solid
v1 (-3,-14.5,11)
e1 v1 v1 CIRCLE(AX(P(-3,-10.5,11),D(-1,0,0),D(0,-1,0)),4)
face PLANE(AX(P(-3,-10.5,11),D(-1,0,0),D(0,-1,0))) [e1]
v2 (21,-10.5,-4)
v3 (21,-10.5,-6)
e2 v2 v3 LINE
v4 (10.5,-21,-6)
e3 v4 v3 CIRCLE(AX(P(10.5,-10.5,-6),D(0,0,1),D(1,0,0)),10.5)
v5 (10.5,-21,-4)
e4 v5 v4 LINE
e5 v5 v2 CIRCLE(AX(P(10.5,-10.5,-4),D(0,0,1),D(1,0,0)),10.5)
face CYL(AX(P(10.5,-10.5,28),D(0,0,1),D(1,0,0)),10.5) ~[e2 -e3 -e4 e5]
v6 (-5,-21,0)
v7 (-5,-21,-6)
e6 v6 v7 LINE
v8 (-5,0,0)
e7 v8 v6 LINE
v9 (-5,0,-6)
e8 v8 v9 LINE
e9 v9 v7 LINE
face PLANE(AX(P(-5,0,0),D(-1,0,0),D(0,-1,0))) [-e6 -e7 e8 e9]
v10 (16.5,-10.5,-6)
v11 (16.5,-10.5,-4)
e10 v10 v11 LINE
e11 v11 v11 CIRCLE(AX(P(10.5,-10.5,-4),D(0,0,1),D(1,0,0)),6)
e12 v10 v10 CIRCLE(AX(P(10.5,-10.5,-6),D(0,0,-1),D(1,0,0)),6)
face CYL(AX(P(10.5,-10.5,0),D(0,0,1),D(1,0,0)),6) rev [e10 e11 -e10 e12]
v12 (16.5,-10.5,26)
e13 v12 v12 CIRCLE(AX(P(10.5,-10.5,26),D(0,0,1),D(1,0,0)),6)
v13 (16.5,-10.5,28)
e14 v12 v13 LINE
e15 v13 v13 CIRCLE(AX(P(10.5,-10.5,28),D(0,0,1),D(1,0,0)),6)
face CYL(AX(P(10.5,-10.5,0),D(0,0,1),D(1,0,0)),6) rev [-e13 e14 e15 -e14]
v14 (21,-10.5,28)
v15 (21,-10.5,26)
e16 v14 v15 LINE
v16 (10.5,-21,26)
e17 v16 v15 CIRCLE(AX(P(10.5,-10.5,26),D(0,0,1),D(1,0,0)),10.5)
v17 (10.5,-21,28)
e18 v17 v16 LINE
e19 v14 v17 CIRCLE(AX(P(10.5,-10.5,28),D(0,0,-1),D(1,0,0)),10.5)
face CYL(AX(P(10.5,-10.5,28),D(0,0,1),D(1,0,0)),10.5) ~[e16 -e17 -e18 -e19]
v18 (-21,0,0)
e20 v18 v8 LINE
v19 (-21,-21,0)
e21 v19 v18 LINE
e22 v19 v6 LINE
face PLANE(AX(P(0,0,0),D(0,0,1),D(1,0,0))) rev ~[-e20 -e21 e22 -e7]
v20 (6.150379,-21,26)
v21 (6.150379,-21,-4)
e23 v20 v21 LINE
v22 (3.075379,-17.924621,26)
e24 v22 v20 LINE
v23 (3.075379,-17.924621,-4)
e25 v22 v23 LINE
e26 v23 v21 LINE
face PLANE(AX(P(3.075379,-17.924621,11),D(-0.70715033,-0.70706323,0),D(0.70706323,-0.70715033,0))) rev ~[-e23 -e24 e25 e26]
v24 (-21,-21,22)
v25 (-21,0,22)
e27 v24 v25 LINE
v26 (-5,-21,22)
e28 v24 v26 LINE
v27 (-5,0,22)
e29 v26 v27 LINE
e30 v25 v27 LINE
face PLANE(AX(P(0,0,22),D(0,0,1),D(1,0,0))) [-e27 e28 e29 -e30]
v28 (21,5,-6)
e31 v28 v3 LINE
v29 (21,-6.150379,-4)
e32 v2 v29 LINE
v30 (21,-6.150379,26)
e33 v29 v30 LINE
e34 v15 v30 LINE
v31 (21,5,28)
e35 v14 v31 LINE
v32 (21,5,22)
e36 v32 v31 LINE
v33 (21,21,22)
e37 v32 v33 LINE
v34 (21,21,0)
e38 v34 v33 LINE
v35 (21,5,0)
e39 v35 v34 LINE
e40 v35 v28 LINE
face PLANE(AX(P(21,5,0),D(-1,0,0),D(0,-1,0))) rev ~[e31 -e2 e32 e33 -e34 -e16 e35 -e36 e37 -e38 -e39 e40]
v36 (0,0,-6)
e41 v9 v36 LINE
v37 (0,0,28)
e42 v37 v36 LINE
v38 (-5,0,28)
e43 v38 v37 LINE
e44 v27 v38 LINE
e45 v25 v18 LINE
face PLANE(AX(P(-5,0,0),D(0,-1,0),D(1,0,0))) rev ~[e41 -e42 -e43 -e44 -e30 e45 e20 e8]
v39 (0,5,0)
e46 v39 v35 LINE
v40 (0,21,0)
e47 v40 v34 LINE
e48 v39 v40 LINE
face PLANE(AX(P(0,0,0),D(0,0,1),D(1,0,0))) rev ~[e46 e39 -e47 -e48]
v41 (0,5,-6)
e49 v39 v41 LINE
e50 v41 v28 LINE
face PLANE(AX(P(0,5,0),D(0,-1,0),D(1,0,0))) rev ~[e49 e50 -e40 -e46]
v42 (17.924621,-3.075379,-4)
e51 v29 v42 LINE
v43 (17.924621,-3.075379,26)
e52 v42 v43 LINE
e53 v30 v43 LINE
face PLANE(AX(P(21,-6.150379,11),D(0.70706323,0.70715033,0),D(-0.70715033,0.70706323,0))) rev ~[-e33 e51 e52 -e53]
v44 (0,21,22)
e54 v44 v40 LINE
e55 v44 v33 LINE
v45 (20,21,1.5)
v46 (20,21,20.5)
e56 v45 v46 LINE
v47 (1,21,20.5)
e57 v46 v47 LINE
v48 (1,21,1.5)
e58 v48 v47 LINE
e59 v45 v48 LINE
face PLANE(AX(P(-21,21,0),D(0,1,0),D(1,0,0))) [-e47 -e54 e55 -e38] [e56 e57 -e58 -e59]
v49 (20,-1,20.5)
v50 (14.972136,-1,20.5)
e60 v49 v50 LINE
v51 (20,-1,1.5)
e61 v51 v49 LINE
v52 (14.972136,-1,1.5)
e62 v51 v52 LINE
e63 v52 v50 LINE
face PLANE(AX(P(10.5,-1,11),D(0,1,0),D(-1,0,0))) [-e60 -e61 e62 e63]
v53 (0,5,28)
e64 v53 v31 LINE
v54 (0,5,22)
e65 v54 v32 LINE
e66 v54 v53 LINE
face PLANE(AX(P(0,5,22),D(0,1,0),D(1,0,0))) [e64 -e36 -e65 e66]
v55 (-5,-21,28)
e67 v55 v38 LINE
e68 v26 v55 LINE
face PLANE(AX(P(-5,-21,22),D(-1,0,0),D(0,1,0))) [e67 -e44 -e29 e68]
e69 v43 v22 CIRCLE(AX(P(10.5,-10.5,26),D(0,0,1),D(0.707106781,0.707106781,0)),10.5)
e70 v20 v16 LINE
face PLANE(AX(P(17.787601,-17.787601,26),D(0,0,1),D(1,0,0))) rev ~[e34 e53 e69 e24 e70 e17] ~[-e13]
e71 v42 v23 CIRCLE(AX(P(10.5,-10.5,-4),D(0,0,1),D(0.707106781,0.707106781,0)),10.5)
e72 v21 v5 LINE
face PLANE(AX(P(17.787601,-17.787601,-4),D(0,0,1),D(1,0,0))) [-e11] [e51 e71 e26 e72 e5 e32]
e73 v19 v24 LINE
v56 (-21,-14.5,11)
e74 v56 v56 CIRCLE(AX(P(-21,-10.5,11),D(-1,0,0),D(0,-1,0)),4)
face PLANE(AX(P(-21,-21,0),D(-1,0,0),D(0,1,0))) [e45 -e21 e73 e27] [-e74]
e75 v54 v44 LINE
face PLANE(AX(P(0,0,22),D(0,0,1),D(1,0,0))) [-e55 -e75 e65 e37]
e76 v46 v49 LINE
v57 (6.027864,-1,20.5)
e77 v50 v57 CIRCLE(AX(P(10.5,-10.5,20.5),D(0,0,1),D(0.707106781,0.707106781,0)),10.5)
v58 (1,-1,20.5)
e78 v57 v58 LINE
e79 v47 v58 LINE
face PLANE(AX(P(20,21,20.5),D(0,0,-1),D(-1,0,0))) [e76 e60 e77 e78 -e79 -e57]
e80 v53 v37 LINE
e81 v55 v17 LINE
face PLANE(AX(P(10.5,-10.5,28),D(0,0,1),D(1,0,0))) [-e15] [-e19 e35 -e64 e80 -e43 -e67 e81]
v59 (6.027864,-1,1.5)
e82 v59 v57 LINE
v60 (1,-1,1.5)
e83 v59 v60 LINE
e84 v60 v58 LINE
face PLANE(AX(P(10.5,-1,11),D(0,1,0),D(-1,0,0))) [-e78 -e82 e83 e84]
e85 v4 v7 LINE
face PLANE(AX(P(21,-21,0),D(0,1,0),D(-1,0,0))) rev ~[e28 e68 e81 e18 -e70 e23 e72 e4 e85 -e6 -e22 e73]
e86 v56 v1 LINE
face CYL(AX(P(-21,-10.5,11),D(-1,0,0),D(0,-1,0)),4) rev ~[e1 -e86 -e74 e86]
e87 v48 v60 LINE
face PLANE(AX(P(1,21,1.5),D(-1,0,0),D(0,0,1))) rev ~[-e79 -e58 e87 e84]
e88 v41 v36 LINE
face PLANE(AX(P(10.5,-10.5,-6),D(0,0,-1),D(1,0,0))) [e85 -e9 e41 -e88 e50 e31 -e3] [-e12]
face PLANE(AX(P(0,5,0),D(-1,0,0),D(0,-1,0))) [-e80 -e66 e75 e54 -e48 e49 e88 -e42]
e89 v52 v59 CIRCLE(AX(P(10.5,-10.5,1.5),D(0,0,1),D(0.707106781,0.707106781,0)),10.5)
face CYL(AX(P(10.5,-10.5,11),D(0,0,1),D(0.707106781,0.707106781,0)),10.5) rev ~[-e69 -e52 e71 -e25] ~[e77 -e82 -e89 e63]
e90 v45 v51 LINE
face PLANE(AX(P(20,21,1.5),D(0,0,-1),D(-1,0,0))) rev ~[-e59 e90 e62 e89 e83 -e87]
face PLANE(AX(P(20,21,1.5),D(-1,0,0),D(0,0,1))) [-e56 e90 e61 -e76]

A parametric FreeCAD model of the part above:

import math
import FreeCAD as App
import Part
import Sketcher
from FreeCAD import Vector


def add_polygon(sketch, points):
    """Adds a closed chain of lines whose ends are joined by coincident constraints."""
    first, n = sketch.GeometryCount, len(points)
    for a, b in zip(points, points[1:] + points[:1]):
        sketch.addGeometry(Part.LineSegment(App.Vector(*a, 0), App.Vector(*b, 0)), False)
    for i in range(n):
        sketch.addConstraint(Sketcher.Constraint("Coincident", first + i, 2, first + (i + 1) % n, 1))

doc = App.newDocument("Part")
body = doc.addObject("PartDesign::Body", "Body")

sketch1 = doc.addObject("Sketcher::SketchObject", "Sketch")
body.addObject(sketch1)
sketch1.AttachmentSupport = (doc.XY_Plane, [""])
sketch1.MapMode = "FlatFace"
add_polygon(sketch1, [(-21, 21), (-21, -21), (21, -21), (21, 21)])
sketch1.addConstraint([
    Sketcher.Constraint("Vertical", 0),
    Sketcher.Constraint("Horizontal", 1),
    Sketcher.Constraint("Vertical", 2),
    Sketcher.Constraint("Horizontal", 3),
    Sketcher.Constraint("Symmetric", 0, 2, 2, 2, -1, 1),
    Sketcher.Constraint("Equal", 3, 0),
    Sketcher.Constraint("DistanceX", 1, 1, 1, 2, 42.0),
])
pad1 = doc.addObject("PartDesign::Pad", "Pad")
body.addObject(pad1)
pad1.Profile = sketch1
pad1.Length = 22

sketch2 = doc.addObject("Sketcher::SketchObject", "Sketch001")
body.addObject(sketch2)
sketch2.AttachmentSupport = (doc.XY_Plane, [""])
sketch2.MapMode = "FlatFace"
sketch2.AttachmentOffset = App.Placement(Vector(0, 0, 22), App.Rotation())
add_polygon(sketch2, [(-21, 21), (-21, 0), (0, 0), (0, 21)])
sketch2.addConstraint([
    Sketcher.Constraint("Vertical", 0),
    Sketcher.Constraint("Horizontal", 1),
    Sketcher.Constraint("Vertical", 2),
    Sketcher.Constraint("Horizontal", 3),
    Sketcher.Constraint("Coincident", 1, 2, -1, 1),
    Sketcher.Constraint("Equal", 3, 0),
    Sketcher.Constraint("DistanceX", 1, 1, 1, 2, 21.0),
])
pocket1 = doc.addObject("PartDesign::Pocket", "Pocket")
body.addObject(pocket1)
pocket1.Profile = sketch2
pocket1.Type = "ThroughAll"

sketch3 = doc.addObject("Sketcher::SketchObject", "Sketch002")
body.addObject(sketch3)
sketch3.AttachmentSupport = (doc.XY_Plane, [""])
sketch3.MapMode = "FlatFace"
sketch3.AttachmentOffset = App.Placement(Vector(0, 0, 22), App.Rotation())
sketch3.addGeometry(Part.Circle(Vector(10, -10, 0), Vector(0, 0, 1), 6), False)
sketch3.addConstraint([
    Sketcher.Constraint("Diameter", 0, 12.0),
    Sketcher.Constraint("DistanceX", -1, 1, 0, 3, 10.5),
    Sketcher.Constraint("DistanceY", 0, 3, -1, 1, 10.5),
])
pocket2 = doc.addObject("PartDesign::Pocket", "Pocket001")
body.addObject(pocket2)
pocket2.Profile = sketch3
pocket2.Type = "ThroughAll"

sketch4 = doc.addObject("Sketcher::SketchObject", "Sketch003")
body.addObject(sketch4)
sketch4.AttachmentSupport = (doc.YZ_Plane, [""])
sketch4.MapMode = "FlatFace"
sketch4.AttachmentOffset = App.Placement(Vector(0, 0, -21), App.Rotation())
sketch4.addGeometry(Part.Circle(Vector(-10.5, 11, 0), Vector(0, 0, 1), 4), False)
sketch4.addConstraint([
    Sketcher.Constraint("Diameter", 0, 8.0),
    Sketcher.Constraint("DistanceY", -1, 1, 0, 3, 11.0),
    Sketcher.Constraint("DistanceX", 0, 3, -1, 1, 10.5),
])
pocket3 = doc.addObject("PartDesign::Pocket", "Pocket002")
body.addObject(pocket3)
pocket3.Profile = sketch4
pocket3.Length = 18
pocket3.Reversed = True

sketch5 = doc.addObject("Sketcher::SketchObject", "Sketch004")
body.addObject(sketch5)
sketch5.AttachmentSupport = (doc.XZ_Plane, [""])
sketch5.MapMode = "FlatFace"
sketch5.AttachmentOffset = App.Placement(Vector(0, 0, -21), App.Rotation())
add_polygon(sketch5, [(20, 20), (20, 2), (1, 2), (1, 20)])
sketch5.addConstraint([
    Sketcher.Constraint("Vertical", 0),
    Sketcher.Constraint("Horizontal", 1),
    Sketcher.Constraint("Vertical", 2),
    Sketcher.Constraint("Horizontal", 3),
    Sketcher.Constraint("Equal", 3, 0),
    Sketcher.Constraint("DistanceX", 1, 2, 1, 1, 19.0),
    Sketcher.Constraint("DistanceX", -1, 1, 0, 2, 20.0),
    Sketcher.Constraint("DistanceY", -1, 1, 0, 2, 1.5),
])
pocket4 = doc.addObject("PartDesign::Pocket", "Pocket003")
body.addObject(pocket4)
pocket4.Profile = sketch5
pocket4.Length = 22
pocket4.Reversed = True

sketch6 = doc.addObject("Sketcher::SketchObject", "Sketch005")
body.addObject(sketch6)
sketch6.AttachmentSupport = (doc.XY_Plane, [""])
sketch6.MapMode = "FlatFace"
sketch6.AttachmentOffset = App.Placement(Vector(0, 0, 22), App.Rotation())
add_polygon(sketch6, [(21, -21), (21, 5), (0, 5), (0, 0), (-5, 0), (-5, -21)])
sketch6.addGeometry(Part.Circle(Vector(10, -10, 0), Vector(0, 0, 1), 6), False)
sketch6.addConstraint([
    Sketcher.Constraint("Vertical", 0),
    Sketcher.Constraint("Horizontal", 1),
    Sketcher.Constraint("Vertical", 2),
    Sketcher.Constraint("Horizontal", 3),
    Sketcher.Constraint("Vertical", 4),
    Sketcher.Constraint("Horizontal", 5),
    Sketcher.Constraint("Coincident", 2, 2, -1, 1),
    Sketcher.Constraint("Equal", 5, 0),
    Sketcher.Constraint("Equal", 3, 2),
    Sketcher.Constraint("Diameter", 6, 12.0),
    Sketcher.Constraint("DistanceX", 1, 2, 1, 1, 21.0),
    Sketcher.Constraint("DistanceX", 3, 2, 3, 1, 5.0),
    Sketcher.Constraint("DistanceX", -1, 1, 6, 3, 10.5),
    Sketcher.Constraint("DistanceY", 6, 3, -1, 1, 10.5),
])
pad2 = doc.addObject("PartDesign::Pad", "Pad001")
body.addObject(pad2)
pad2.Profile = sketch6
pad2.Length = 6

sketch7 = doc.addObject("Sketcher::SketchObject", "Sketch006")
body.addObject(sketch7)
sketch7.AttachmentSupport = (doc.XY_Plane, [""])
sketch7.MapMode = "FlatFace"
add_polygon(sketch7, [(21, -21), (-5, -21), (-5, 0), (0, 0), (0, 5), (21, 5)])
sketch7.addGeometry(Part.Circle(Vector(10, -10, 0), Vector(0, 0, 1), 6), False)
sketch7.addConstraint([
    Sketcher.Constraint("Horizontal", 0),
    Sketcher.Constraint("Vertical", 1),
    Sketcher.Constraint("Horizontal", 2),
    Sketcher.Constraint("Vertical", 3),
    Sketcher.Constraint("Horizontal", 4),
    Sketcher.Constraint("Vertical", 5),
    Sketcher.Constraint("Coincident", 2, 2, -1, 1),
    Sketcher.Constraint("Equal", 4, 1),
    Sketcher.Constraint("Equal", 2, 3),
    Sketcher.Constraint("Diameter", 6, 12.0),
    Sketcher.Constraint("DistanceX", 0, 2, 0, 1, 26.0),
    Sketcher.Constraint("DistanceX", 2, 1, 2, 2, 5.0),
    Sketcher.Constraint("DistanceX", -1, 1, 6, 3, 10.5),
    Sketcher.Constraint("DistanceY", 6, 3, -1, 1, 10.5),
])
pad3 = doc.addObject("PartDesign::Pad", "Pad002")
body.addObject(pad3)
pad3.Profile = sketch7
pad3.Length = 6
pad3.Reversed = True

sketch8 = doc.addObject("Sketcher::SketchObject", "Sketch007")
body.addObject(sketch8)
sketch8.AttachmentSupport = (doc.XY_Plane, [""])
sketch8.MapMode = "FlatFace"
sketch8.AttachmentOffset = App.Placement(Vector(0, 0, 11), App.Rotation())
sketch8.addGeometry([
    Part.LineSegment(Vector(21, -21, 0), Vector(21, -6.2, 0)),
    Part.LineSegment(Vector(21, -6.2, 0), Vector(17.9, -3.1, 0)),
    Part.ArcOfCircle(Part.Circle(Vector(10.5, -10.5, 0), Vector(0, 0, 1), 10.5), math.radians(45), math.radians(225)),
    Part.LineSegment(Vector(3.1, -17.9, 0), Vector(6.2, -21, 0)),
    Part.LineSegment(Vector(6.2, -21, 0), Vector(21, -21, 0)),
    Part.Circle(Vector(10.5, -10.5, 0), Vector(0, 0, 1), 6),
], False)
sketch8.addConstraint([
    Sketcher.Constraint("Coincident", 0, 2, 1, 1),
    Sketcher.Constraint("Coincident", 1, 2, 2, 1),
    Sketcher.Constraint("Coincident", 2, 2, 3, 1),
    Sketcher.Constraint("Coincident", 3, 2, 4, 1),
    Sketcher.Constraint("Coincident", 4, 2, 0, 1),
    Sketcher.Constraint("Vertical", 0),
    Sketcher.Constraint("Horizontal", 4),
    Sketcher.Constraint("Coincident", 5, 3, 2, 3),
    Sketcher.Constraint("Equal", 4, 0),
    Sketcher.Constraint("Equal", 1, 3),
    Sketcher.Constraint("Diameter", 5, 12.0),
    Sketcher.Constraint("Radius", 2, 10.5),
    Sketcher.Constraint("DistanceX", -1, 1, 0, 2, 21.0),
    Sketcher.Constraint("DistanceY", 3, 2, -1, 1, 21.0),
    Sketcher.Constraint("DistanceX", -1, 1, 2, 3, 10.5),
    Sketcher.Constraint("DistanceY", 2, 3, -1, 1, 10.5),
    Sketcher.Constraint("DistanceY", 0, 2, 1, 2, 3.075),
    Sketcher.Constraint("DistanceX", 4, 1, 4, 2, 14.849621),
])
pocket5 = doc.addObject("PartDesign::Pocket", "Pocket004")
body.addObject(pocket5)
pocket5.Profile = sketch8
pocket5.Length = 30
pocket5.Midplane = True

sketch9 = doc.addObject("Sketcher::SketchObject", "Sketch008")
body.addObject(sketch9)
sketch9.AttachmentSupport = (doc.XY_Plane, [""])
sketch9.MapMode = "FlatFace"
sketch9.AttachmentOffset = App.Placement(Vector(0, 0, 28), App.Rotation())
sketch9.addGeometry([
    Part.LineSegment(Vector(21, -21, 0), Vector(21, -10, 0)),
    Part.ArcOfCircle(Part.Circle(Vector(10, -10, 0), Vector(0, 0, 1), 10), math.radians(-90), math.radians(0)),
    Part.LineSegment(Vector(10, -21, 0), Vector(21, -21, 0)),
], False)
sketch9.addConstraint([
    Sketcher.Constraint("Tangent", 0, 2, 1, 2),
    Sketcher.Constraint("Tangent", 1, 1, 2, 1),
    Sketcher.Constraint("Coincident", 2, 2, 0, 1),
    Sketcher.Constraint("Vertical", 0),
    Sketcher.Constraint("Horizontal", 2),
    Sketcher.Constraint("Radius", 1, 10.5),
    Sketcher.Constraint("DistanceX", -1, 1, 0, 2, 21.0),
    Sketcher.Constraint("DistanceY", 1, 1, -1, 1, 21.0),
])
pocket6 = doc.addObject("PartDesign::Pocket", "Pocket005")
body.addObject(pocket6)
pocket6.Profile = sketch9
pocket6.Type = "ThroughAll"

doc.recompute()
